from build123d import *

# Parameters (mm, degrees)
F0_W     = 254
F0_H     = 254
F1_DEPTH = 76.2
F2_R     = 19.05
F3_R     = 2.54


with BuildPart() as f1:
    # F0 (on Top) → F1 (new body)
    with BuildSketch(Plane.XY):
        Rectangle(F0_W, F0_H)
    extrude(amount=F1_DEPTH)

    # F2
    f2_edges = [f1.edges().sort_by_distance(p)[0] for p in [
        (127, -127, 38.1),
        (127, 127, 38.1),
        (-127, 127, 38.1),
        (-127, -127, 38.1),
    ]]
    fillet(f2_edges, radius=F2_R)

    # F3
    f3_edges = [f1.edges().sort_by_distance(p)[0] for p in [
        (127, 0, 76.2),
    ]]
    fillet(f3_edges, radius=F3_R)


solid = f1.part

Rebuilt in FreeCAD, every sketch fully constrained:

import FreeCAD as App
import Part
import Sketcher
from FreeCAD import Vector
Q = App.Units.Quantity


def edges_at(feature, points):
    """Names of the edges that pass closest to the given points."""
    edges = feature.Shape.Edges
    near = lambda p: min(range(len(edges)), key=lambda i: edges[i].distToShape(Part.Vertex(*p))[0])
    return sorted({f"Edge{near(p) + 1}" for p in points})


def add_polygon(sketch, points):
    """Adds a closed chain of lines whose ends are joined by coincident constraints."""
    first, n = sketch.GeometryCount, len(points)
    for a, b in zip(points, points[1:] + points[:1]):
        sketch.addGeometry(Part.LineSegment(App.Vector(*a, 0), App.Vector(*b, 0)), False)
    for i in range(n):
        sketch.addConstraint(Sketcher.Constraint("Coincident", first + i, 2, first + (i + 1) % n, 1))

doc = App.newDocument("Part")
body = doc.addObject("PartDesign::Body", "Body")

# Sketch on XY plane
sketch1 = body.newObject("Sketcher::SketchObject", "Sketch")
sketch1.AttachmentSupport = (doc.getObject("XY_Plane"), [""])
sketch1.MapMode = "FlatFace"
add_polygon(sketch1, [(-127, 127), (-127, -127), (127, -127), (127, 127)])  # lines 0-3
sketch1.addConstraint([
    Sketcher.Constraint("Vertical", 0),
    Sketcher.Constraint("Horizontal", 1),
    Sketcher.Constraint("Vertical", 2),
    Sketcher.Constraint("Horizontal", 3),
    Sketcher.Constraint("Symmetric", 0, 2, 2, 2, -1, 1),
    Sketcher.Constraint("Equal", 3, 0),
    Sketcher.Constraint("DistanceX", 1, 1, 1, 2, Q("10 in")),
])
pad1 = body.newObject("PartDesign::Pad", "Pad")
pad1.Profile = sketch1
pad1.Length = Q("3 in")
doc.recompute()

fillet = body.newObject("PartDesign::Fillet", "Fillet")
fillet.Base = (pad1, edges_at(pad1, [
    (127, -127, 38.1),
    (127, 127, 38.1),
    (-127, 127, 38.1),
    (-127, -127, 38.1),
]))
fillet.Radius = Q("0.75 in")
doc.recompute()

fillet2 = body.newObject("PartDesign::Fillet", "Fillet001")
fillet2.Base = (fillet, edges_at(fillet, [(127, 0, 76.2)]))
fillet2.Radius = Q("0.1 in")

doc.recompute()
